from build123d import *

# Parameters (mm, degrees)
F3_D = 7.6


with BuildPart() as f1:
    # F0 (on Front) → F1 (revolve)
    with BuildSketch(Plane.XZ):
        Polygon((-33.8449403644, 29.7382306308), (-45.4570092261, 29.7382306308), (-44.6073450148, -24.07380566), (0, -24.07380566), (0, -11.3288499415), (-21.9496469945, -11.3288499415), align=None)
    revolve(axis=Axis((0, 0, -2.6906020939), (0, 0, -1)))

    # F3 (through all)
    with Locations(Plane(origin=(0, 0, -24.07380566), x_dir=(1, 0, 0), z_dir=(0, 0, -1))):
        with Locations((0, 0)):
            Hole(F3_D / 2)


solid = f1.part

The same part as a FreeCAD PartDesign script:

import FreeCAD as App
import Part
import Sketcher

V = App.Vector


def add_polygon(sketch, points):
    """Adds a closed chain of lines whose ends are joined by coincident constraints."""
    first, n = sketch.GeometryCount, len(points)
    for a, b in zip(points, points[1:] + points[:1]):
        sketch.addGeometry(Part.LineSegment(App.Vector(*a, 0), App.Vector(*b, 0)), False)
    for i in range(n):
        sketch.addConstraint(Sketcher.Constraint("Coincident", first + i, 2, first + (i + 1) % n, 1))

doc = App.newDocument("Part")
body = doc.addObject("PartDesign::Body", "Body")

# Sketch on XZ plane
sketch1 = body.newObject("Sketcher::SketchObject", "Sketch")
sketch1.AttachmentSupport = (doc.getObject("XZ_Plane"), [""])
sketch1.MapMode = "FlatFace"
add_polygon(sketch1, [(-33.84494, 29.738231), (-45.457009, 29.738231), (-44.607345, -24.073806), (0, -24.073806), (0, -11.32885), (-21.949647, -11.32885)])  # lines 0-5
sketch1.addConstraint(Sketcher.Constraint("Horizontal", 0))
sketch1.addConstraint(Sketcher.Constraint("Horizontal", 2))
sketch1.addConstraint(Sketcher.Constraint("Vertical", 3))
sketch1.addConstraint(Sketcher.Constraint("Horizontal", 4))
sketch1.addConstraint(Sketcher.Constraint("PointOnObject", 2, 2, -2))
sketch1.addConstraint(Sketcher.Constraint("DistanceX", 0, 2, 0, 1, 11.612069))
sketch1.addConstraint(Sketcher.Constraint("DistanceX", 1, 2, 4, 2, 22.657698))
sketch1.addConstraint(Sketcher.Constraint("DistanceX", 2, 1, 2, 2, 44.607345))
sketch1.addConstraint(Sketcher.Constraint("DistanceY", 3, 1, 3, 2, 12.744956))
sketch1.addConstraint(Sketcher.Constraint("DistanceX", 0, 2, -1, 1, 45.457009))
sketch1.addConstraint(Sketcher.Constraint("DistanceY", -1, 1, 0, 2, 29.738231))
sketch1.addConstraint(Sketcher.Constraint("DistanceY", 3, 2, -1, 1, 11.32885))
revolution = body.newObject("PartDesign::Revolution", "Revolution")
revolution.Profile = sketch1
revolution.ReferenceAxis = (sketch1, ["V_Axis"])
revolution.Angle = 360

# Sketch on XY plane
sketch2 = body.newObject("Sketcher::SketchObject", "Sketch001")
sketch2.AttachmentSupport = (doc.getObject("XY_Plane"), [""])
sketch2.MapMode = "FlatFace"
sketch2.AttachmentOffset = App.Placement(V(0, 0, -24.073806), App.Rotation())
sketch2.addGeometry(Part.Circle(V(0, 0, 0), V(0, 0, 1), 3.8), False)
sketch2.addConstraint(Sketcher.Constraint("Coincident", 0, 3, -1, 1))
sketch2.addConstraint(Sketcher.Constraint("Diameter", 0, 7.6))
doc.recompute()
hole = body.newObject("PartDesign::Hole", "Hole")
hole.Profile = sketch2
hole.ThreadType = "None"
hole.Diameter = 7.6
hole.DepthType = "ThroughAll"
hole.Reversed = True

doc.recompute()
